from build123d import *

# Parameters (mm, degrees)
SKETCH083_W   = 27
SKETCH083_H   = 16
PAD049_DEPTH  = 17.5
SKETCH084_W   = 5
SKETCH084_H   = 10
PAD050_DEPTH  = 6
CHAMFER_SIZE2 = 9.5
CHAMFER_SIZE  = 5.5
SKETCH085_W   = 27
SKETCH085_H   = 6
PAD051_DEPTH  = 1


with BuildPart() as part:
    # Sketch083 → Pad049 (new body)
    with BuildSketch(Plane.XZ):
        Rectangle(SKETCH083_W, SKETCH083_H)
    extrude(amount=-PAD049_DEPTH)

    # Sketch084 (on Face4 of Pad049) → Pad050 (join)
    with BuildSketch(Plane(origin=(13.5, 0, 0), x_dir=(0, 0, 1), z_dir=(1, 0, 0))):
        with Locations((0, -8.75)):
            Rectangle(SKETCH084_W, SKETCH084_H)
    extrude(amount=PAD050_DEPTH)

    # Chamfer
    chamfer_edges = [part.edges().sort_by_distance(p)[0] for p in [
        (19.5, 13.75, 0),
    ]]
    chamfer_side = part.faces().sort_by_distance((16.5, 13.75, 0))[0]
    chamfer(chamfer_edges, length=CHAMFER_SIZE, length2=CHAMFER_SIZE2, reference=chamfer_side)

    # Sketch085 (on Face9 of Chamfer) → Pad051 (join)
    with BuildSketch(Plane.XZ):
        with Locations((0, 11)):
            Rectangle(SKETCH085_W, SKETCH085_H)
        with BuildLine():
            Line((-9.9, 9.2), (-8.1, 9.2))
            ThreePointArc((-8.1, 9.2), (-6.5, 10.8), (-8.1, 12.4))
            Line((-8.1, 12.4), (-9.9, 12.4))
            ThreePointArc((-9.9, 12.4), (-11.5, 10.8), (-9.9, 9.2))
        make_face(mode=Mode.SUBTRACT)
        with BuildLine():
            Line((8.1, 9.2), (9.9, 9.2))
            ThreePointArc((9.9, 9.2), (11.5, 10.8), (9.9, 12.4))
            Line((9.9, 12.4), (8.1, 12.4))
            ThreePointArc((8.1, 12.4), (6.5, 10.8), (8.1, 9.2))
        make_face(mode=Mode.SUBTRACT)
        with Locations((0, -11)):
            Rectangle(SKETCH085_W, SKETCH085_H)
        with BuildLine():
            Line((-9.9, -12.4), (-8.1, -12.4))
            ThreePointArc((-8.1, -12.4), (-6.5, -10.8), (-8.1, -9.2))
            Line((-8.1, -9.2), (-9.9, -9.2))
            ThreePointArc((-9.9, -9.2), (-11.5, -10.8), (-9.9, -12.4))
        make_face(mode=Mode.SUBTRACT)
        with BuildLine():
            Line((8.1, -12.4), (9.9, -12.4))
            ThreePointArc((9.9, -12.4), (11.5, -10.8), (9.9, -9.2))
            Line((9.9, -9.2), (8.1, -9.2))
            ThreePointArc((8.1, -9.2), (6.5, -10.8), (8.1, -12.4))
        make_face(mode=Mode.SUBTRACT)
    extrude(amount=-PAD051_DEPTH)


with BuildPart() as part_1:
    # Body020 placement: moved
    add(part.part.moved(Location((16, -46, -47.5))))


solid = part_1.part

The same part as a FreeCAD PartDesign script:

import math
import FreeCAD as App
import Part
import Sketcher

V = App.Vector
Q = App.Units.Quantity


def edges_at(feature, points):
    """Names of the edges that pass closest to the given points."""
    edges = feature.Shape.Edges
    near = lambda p: min(range(len(edges)), key=lambda i: edges[i].distToShape(Part.Vertex(*p))[0])
    return sorted({f"Edge{near(p) + 1}" for p in points})


def add_polygon(sketch, points):
    """Adds a closed chain of lines whose ends are joined by coincident constraints."""
    first, n = sketch.GeometryCount, len(points)
    for a, b in zip(points, points[1:] + points[:1]):
        sketch.addGeometry(Part.LineSegment(App.Vector(*a, 0), App.Vector(*b, 0)), False)
    for i in range(n):
        sketch.addConstraint(Sketcher.Constraint("Coincident", first + i, 2, first + (i + 1) % n, 1))

doc = App.newDocument("Part")
body = doc.addObject("PartDesign::Body", "Body")

sketch1 = body.newObject("Sketcher::SketchObject", "Sketch")
sketch1.AttachmentSupport = (doc.getObject("XZ_Plane"), [""])
sketch1.MapMode = "FlatFace"
add_polygon(sketch1, [(-14, 8), (-14, -8), (14, -8), (14, 8)])
sketch1.addConstraint([
    Sketcher.Constraint("Vertical", 0),
    Sketcher.Constraint("Horizontal", 1),
    Sketcher.Constraint("Vertical", 2),
    Sketcher.Constraint("Horizontal", 3),
    Sketcher.Constraint("Symmetric", 0, 2, 2, 2, -1, 1),
    Sketcher.Constraint("DistanceX", 1, 1, 1, 2, Q("27 mm")),
    Sketcher.Constraint("DistanceY", 0, 2, 0, 1, Q("16 mm")),
])
pad1 = body.newObject("PartDesign::Pad", "Pad")
pad1.Profile = sketch1
pad1.Length = 17.5
pad1.Reversed = True

sketch2 = body.newObject("Sketcher::SketchObject", "Sketch001")
sketch2.AttachmentSupport = (doc.getObject("YZ_Plane"), [""])
sketch2.MapMode = "FlatFace"
sketch2.AttachmentOffset = App.Placement(V(0, 0, 13.5), App.Rotation())
add_polygon(sketch2, [(4, -2), (14, -2), (14, 2), (4, 2)])
sketch2.addConstraint([
    Sketcher.Constraint("Horizontal", 0),
    Sketcher.Constraint("Vertical", 1),
    Sketcher.Constraint("Horizontal", 2),
    Sketcher.Constraint("Vertical", 3),
    Sketcher.Constraint("DistanceX", 0, 1, 0, 2, Q("10 mm")),
    Sketcher.Constraint("DistanceY", 1, 1, 1, 2, Q("5 mm")),
    Sketcher.Constraint("DistanceY", 0, 2, -1, 1, Q("2.5 mm")),
    Sketcher.Constraint("DistanceX", -1, 1, 0, 2, Q("13.75 mm")),
])
pad2 = body.newObject("PartDesign::Pad", "Pad001")
pad2.Profile = sketch2
pad2.Length = 6
doc.recompute()

chamfer = body.newObject("PartDesign::Chamfer", "Chamfer")
chamfer.Base = (pad2, edges_at(pad2, [(19.5, 13.75, 0)]))
chamfer.ChamferType = "Two distances"
chamfer.Size = 5.5
chamfer.Size2 = 9.5

sketch3 = body.newObject("Sketcher::SketchObject", "Sketch002")
sketch3.AttachmentSupport = (doc.getObject("XZ_Plane"), [""])
sketch3.MapMode = "FlatFace"
add_polygon(sketch3, [(-13.5, 14), (-13.5, 8), (13.5, 8), (13.5, 14)])
sketch3.addGeometry(Part.LineSegment(V(-8.1, 9.2, 0), V(-9.9, 9.2, 0)), False)
sketch3.addGeometry(Part.ArcOfCircle(Part.Circle(V(-9.9, 10.8, 0), V(0, 0, 1), 1.6), math.radians(90), math.radians(270)), False)
sketch3.addGeometry(Part.LineSegment(V(-9.9, 12.4, 0), V(-8.1, 12.4, 0)), False)
sketch3.addGeometry(Part.ArcOfCircle(Part.Circle(V(-8.1, 10.8, 0), V(0, 0, 1), 1.6), math.radians(-90), math.radians(90)), False)
sketch3.addGeometry(Part.LineSegment(V(9.9, 9.2, 0), V(8.1, 9.2, 0)), False)
sketch3.addGeometry(Part.ArcOfCircle(Part.Circle(V(8.1, 10.8, 0), V(0, 0, 1), 1.6), math.radians(90), math.radians(270)), False)
sketch3.addGeometry(Part.LineSegment(V(8.1, 12.4, 0), V(9.9, 12.4, 0)), False)
sketch3.addGeometry(Part.ArcOfCircle(Part.Circle(V(9.9, 10.8, 0), V(0, 0, 1), 1.6), math.radians(-90), math.radians(90)), False)
add_polygon(sketch3, [(-13.5, -8), (-13.5, -14), (13.5, -14), (13.5, -8)])
sketch3.addGeometry(Part.LineSegment(V(-8.1, -12.4, 0), V(-9.9, -12.4, 0)), False)
sketch3.addGeometry(Part.ArcOfCircle(Part.Circle(V(-9.9, -10.8, 0), V(0, 0, 1), 1.6), math.radians(90), math.radians(270)), False)
sketch3.addGeometry(Part.LineSegment(V(-9.9, -9.2, 0), V(-8.1, -9.2, 0)), False)
sketch3.addGeometry(Part.ArcOfCircle(Part.Circle(V(-8.1, -10.8, 0), V(0, 0, 1), 1.6), math.radians(-90), math.radians(90)), False)
sketch3.addGeometry(Part.LineSegment(V(9.9, -12.4, 0), V(8.1, -12.4, 0)), False)
sketch3.addGeometry(Part.ArcOfCircle(Part.Circle(V(8.1, -10.8, 0), V(0, 0, 1), 1.6), math.radians(90), math.radians(270)), False)
sketch3.addGeometry(Part.LineSegment(V(8.1, -9.2, 0), V(9.9, -9.2, 0)), False)
sketch3.addGeometry(Part.ArcOfCircle(Part.Circle(V(9.9, -10.8, 0), V(0, 0, 1), 1.6), math.radians(-90), math.radians(90)), False)
sketch3.addConstraint([
    Sketcher.Constraint("Tangent", 4, 2, 5, 2),
    Sketcher.Constraint("Tangent", 5, 1, 6, 1),
    Sketcher.Constraint("Tangent", 6, 2, 7, 2),
    Sketcher.Constraint("Tangent", 7, 1, 4, 1),
    Sketcher.Constraint("Tangent", 8, 2, 9, 2),
    Sketcher.Constraint("Tangent", 9, 1, 10, 1),
    Sketcher.Constraint("Tangent", 10, 2, 11, 2),
    Sketcher.Constraint("Tangent", 11, 1, 8, 1),
    Sketcher.Constraint("Tangent", 16, 2, 17, 2),
    Sketcher.Constraint("Tangent", 17, 1, 18, 1),
    Sketcher.Constraint("Tangent", 18, 2, 19, 2),
    Sketcher.Constraint("Tangent", 19, 1, 16, 1),
    Sketcher.Constraint("Tangent", 20, 2, 21, 2),
    Sketcher.Constraint("Tangent", 21, 1, 22, 1),
    Sketcher.Constraint("Tangent", 22, 2, 23, 2),
    Sketcher.Constraint("Tangent", 23, 1, 20, 1),
    Sketcher.Constraint("Vertical", 0),
    Sketcher.Constraint("Horizontal", 1),
    Sketcher.Constraint("Vertical", 2),
    Sketcher.Constraint("Horizontal", 3),
    Sketcher.Constraint("Horizontal", 4),
    Sketcher.Constraint("Horizontal", 6),
    Sketcher.Constraint("Horizontal", 8),
    Sketcher.Constraint("Horizontal", 10),
    Sketcher.Constraint("Vertical", 12),
    Sketcher.Constraint("Horizontal", 13),
    Sketcher.Constraint("Vertical", 14),
    Sketcher.Constraint("Horizontal", 15),
    Sketcher.Constraint("Horizontal", 16),
    Sketcher.Constraint("Horizontal", 18),
    Sketcher.Constraint("Horizontal", 20),
    Sketcher.Constraint("Horizontal", 22),
    Sketcher.Constraint("Equal", 7, 9),
    Sketcher.Constraint("Equal", 11, 17),
    Sketcher.Constraint("Equal", 19, 21),
    Sketcher.Constraint("Symmetric", 11, 3, 17, 3, -1, 1),
    Sketcher.Constraint("Symmetric", 7, 3, 21, 3, -1, 1),
    Sketcher.Constraint("Symmetric", 2, 2, 12, 2, -1, 1),
    Sketcher.Constraint("Symmetric", 0, 2, 14, 2, -1, 1),
    Sketcher.Constraint("Symmetric", 7, 3, 9, 3, -2),
    Sketcher.Constraint("Vertical", 5, 3, 17, 3),
    Sketcher.Constraint("Vertical", 7, 3, 19, 3),
    Sketcher.Constraint("Vertical", 11, 3, 23, 3),
    Sketcher.Constraint("Vertical", 3, 2, 12, 2),
    Sketcher.Constraint("Radius", 5, Q("1.6 mm")),
    Sketcher.Constraint("DistanceX", 1, 1, 1, 2, Q("27 mm")),
    Sketcher.Constraint("DistanceY", 0, 2, 0, 1, Q("6 mm")),
    Sketcher.Constraint("DistanceX", 4, 2, 4, 1, Q("1.8 mm")),
    Sketcher.Constraint("DistanceY", -1, 1, 0, 2, Q("8 mm")),
    Sketcher.Constraint("DistanceX", 5, 3, 9, 3, Q("18 mm")),
    Sketcher.Constraint("DistanceY", -1, 1, 5, 3, Q("10.8 mm")),
])
pad3 = body.newObject("PartDesign::Pad", "Pad002")
pad3.Profile = sketch3
pad3.Length = 1
pad3.Reversed = True
body2 = doc.addObject("PartDesign::Body", "Body001")
doc.recompute()

body.Placement = App.Placement(V(16, -46, -47.5), App.Rotation(V(0, 0, 1), 0))
boolean = body2.newObject("PartDesign::Boolean", "Boolean")
boolean.Type = "Fuse"
boolean.addObjects([body])

doc.recompute()
